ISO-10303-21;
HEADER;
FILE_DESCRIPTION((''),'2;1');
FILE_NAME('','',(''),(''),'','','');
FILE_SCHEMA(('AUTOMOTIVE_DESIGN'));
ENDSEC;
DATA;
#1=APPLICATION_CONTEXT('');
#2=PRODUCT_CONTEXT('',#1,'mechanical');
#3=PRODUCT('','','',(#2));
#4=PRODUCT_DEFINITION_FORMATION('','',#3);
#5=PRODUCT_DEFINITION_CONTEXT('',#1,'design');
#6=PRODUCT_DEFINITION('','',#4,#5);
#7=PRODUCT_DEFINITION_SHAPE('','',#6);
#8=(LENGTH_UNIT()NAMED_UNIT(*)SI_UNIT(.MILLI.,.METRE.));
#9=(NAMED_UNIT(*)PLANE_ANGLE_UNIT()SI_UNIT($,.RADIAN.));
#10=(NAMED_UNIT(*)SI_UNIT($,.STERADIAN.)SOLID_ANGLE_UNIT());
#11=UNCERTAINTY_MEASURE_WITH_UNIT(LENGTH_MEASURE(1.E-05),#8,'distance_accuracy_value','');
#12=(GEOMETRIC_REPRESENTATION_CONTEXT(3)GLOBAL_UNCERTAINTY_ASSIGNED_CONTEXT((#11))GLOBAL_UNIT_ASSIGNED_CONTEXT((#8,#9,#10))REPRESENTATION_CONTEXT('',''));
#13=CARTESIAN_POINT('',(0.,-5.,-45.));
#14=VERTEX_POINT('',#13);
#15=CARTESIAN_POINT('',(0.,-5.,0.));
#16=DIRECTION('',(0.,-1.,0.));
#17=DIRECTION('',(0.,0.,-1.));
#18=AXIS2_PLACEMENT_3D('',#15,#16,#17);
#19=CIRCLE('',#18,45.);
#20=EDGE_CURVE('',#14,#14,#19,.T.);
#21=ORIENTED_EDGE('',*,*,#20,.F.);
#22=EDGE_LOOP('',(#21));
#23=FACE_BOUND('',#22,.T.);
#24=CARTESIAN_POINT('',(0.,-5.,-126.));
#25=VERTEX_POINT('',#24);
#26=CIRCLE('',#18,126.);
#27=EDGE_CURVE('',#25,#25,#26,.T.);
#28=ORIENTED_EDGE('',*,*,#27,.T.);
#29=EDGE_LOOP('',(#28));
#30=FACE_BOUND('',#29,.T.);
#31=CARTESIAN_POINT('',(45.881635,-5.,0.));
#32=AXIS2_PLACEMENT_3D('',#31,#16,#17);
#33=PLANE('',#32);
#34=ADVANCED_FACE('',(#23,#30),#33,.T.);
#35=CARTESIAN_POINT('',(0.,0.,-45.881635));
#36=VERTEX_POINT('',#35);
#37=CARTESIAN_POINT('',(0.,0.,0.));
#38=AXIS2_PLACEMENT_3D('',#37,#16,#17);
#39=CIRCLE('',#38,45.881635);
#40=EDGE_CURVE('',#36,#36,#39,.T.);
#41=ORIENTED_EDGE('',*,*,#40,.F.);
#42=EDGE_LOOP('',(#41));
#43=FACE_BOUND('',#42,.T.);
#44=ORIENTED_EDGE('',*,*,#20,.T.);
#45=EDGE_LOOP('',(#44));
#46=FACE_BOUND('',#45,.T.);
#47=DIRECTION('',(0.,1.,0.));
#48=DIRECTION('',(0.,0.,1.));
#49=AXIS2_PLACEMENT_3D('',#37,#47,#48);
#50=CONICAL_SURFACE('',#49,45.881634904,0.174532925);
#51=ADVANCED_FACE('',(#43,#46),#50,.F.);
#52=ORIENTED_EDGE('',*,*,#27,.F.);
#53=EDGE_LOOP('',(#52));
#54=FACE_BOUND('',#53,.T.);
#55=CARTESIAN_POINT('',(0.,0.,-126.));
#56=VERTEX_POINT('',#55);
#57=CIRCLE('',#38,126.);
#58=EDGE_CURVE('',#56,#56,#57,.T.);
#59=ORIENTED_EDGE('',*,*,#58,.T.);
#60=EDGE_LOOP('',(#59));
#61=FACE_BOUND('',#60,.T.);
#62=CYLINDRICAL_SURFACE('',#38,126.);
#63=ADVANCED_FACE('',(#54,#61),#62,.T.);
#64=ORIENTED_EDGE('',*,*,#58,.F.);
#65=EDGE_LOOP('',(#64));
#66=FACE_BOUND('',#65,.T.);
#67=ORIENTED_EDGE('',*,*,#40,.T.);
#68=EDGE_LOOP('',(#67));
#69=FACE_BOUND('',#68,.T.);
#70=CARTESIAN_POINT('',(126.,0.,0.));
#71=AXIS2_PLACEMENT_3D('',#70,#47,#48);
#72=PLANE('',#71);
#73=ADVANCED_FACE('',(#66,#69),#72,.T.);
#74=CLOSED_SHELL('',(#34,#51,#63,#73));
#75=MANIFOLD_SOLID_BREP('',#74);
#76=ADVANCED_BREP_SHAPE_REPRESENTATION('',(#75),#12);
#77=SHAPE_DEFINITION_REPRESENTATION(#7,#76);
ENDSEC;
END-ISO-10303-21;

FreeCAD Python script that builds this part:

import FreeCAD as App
import Part
import Sketcher
Q = App.Units.Quantity

doc = App.newDocument("Part")
body = doc.addObject("PartDesign::Body", "Body")

# Sketch on XY plane
sketch1 = body.newObject("Sketcher::SketchObject", "Sketch")
sketch1.AttachmentSupport = (doc.getObject("XY_Plane"), [""])
sketch1.MapMode = "FlatFace"
sketch1.addGeometry([
    Part.LineSegment(App.Vector(126, -5, 0), App.Vector(126, 0, 0)),
    Part.LineSegment(App.Vector(126, 0, 0), App.Vector(46, 0, 0)),
    Part.LineSegment(App.Vector(46, 0, 0), App.Vector(45, -5, 0)),
    Part.LineSegment(App.Vector(45, -5, 0), App.Vector(126, -5, 0)),
], False)
sketch1.addConstraint([
    Sketcher.Constraint("Coincident", 0, 2, 1, 1),
    Sketcher.Constraint("Coincident", 1, 2, 2, 1),
    Sketcher.Constraint("Coincident", 2, 2, 3, 1),
    Sketcher.Constraint("Coincident", 3, 2, 0, 1),
    Sketcher.Constraint("Vertical", 0),
    Sketcher.Constraint("Horizontal", 1),
    Sketcher.Constraint("Horizontal", 3),
    Sketcher.Constraint("PointOnObject", 0, 2, -1),
    Sketcher.Constraint("DistanceX", 3, 1, 3, 2, Q("81 mm")),
    Sketcher.Constraint("DistanceY", 0, 1, 0, 2, Q("5 mm")),
    Sketcher.Constraint("Angle", 2, Q("-100 deg")),
    Sketcher.Constraint("DistanceX", -1, 1, 0, 2, Q("126 mm")),
])
revolution = body.newObject("PartDesign::Revolution", "Revolution")
revolution.Profile = sketch1
revolution.ReferenceAxis = (sketch1, ["V_Axis"])
revolution.Angle = 360

doc.recompute()
